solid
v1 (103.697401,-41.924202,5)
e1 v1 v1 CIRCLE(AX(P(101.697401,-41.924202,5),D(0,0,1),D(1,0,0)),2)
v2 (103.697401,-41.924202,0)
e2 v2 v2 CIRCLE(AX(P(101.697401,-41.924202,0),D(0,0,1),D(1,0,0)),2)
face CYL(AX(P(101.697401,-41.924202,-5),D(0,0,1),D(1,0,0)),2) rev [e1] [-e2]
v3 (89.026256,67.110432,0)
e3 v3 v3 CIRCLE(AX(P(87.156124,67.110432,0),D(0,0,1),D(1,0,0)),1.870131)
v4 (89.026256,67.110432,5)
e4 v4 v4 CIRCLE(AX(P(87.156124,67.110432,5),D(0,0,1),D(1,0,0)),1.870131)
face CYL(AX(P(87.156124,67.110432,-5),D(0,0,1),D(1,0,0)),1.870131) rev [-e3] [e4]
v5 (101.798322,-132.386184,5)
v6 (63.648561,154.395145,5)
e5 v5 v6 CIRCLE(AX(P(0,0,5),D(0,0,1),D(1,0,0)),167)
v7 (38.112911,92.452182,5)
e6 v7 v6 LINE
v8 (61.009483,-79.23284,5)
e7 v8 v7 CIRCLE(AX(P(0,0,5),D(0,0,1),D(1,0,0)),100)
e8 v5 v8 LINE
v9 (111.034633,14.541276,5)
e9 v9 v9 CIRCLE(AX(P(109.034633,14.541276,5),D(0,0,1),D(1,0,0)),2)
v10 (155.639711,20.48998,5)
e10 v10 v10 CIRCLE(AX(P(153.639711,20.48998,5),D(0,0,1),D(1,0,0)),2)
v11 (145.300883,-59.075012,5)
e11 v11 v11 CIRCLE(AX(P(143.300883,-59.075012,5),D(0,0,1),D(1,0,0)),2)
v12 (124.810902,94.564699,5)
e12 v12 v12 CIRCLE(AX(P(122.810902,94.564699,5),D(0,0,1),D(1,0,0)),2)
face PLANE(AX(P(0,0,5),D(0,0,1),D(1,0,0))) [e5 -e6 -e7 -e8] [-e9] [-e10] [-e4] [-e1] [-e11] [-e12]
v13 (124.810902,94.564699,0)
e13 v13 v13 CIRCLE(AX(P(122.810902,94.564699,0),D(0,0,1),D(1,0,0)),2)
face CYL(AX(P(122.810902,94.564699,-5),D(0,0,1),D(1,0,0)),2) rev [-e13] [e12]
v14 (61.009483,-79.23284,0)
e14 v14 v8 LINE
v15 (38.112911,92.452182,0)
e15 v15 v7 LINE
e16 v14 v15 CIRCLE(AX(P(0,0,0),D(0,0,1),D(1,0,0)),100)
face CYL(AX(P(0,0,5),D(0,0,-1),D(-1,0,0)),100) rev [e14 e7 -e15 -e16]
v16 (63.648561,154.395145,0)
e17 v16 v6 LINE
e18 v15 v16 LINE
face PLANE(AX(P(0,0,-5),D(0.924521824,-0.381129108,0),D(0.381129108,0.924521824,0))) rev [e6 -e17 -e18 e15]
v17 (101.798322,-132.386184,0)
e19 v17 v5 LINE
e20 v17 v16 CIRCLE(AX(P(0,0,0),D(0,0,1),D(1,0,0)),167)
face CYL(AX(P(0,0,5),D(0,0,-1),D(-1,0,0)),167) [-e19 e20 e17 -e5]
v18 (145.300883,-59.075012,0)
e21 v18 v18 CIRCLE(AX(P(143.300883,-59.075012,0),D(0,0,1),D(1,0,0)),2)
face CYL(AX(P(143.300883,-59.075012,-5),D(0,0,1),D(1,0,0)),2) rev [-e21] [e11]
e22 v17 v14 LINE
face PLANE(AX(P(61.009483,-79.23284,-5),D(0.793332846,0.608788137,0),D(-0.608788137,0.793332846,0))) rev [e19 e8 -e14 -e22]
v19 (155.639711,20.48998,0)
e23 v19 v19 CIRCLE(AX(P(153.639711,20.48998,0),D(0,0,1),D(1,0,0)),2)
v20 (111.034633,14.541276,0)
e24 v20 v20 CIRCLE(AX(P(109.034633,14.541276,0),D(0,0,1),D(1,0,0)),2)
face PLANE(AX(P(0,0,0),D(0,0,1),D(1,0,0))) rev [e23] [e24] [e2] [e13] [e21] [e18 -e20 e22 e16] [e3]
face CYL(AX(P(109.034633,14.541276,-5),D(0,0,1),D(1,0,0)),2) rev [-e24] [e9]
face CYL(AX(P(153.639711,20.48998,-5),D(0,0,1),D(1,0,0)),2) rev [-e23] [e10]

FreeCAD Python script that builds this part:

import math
import FreeCAD as App
import Part
import Sketcher
Q = App.Units.Quantity

doc = App.newDocument("Part")
body = doc.addObject("PartDesign::Body", "Body")
body.AllowCompound = True

# Sketch on XY plane
sketch1 = doc.addObject("Sketcher::SketchObject", "Sketch")
body.addObject(sketch1)
sketch1.AttachmentSupport = (doc.XY_Plane, [""])
sketch1.MapMode = "FlatFace"
sketch1.addGeometry(Part.LineSegment(App.Vector(-2, 167, 0), App.Vector(-2, 100, 0)), False)
sketch1.addGeometry(Part.ArcOfCircle(Part.Circle(App.Vector(0, 0, 0), App.Vector(0, 0, 1), 100), math.radians(-91), math.radians(91)), False)
sketch1.addGeometry(Part.LineSegment(App.Vector(-2, -100, 0), App.Vector(-2, -167, 0)), False)
sketch1.addGeometry(Part.ArcOfCircle(Part.Circle(App.Vector(0, 0, 0), App.Vector(0, 0, 1), 167), math.radians(-91), math.radians(91)), False)
sketch1.addConstraint(Sketcher.Constraint("Coincident", 0, 2, 1, 2))
sketch1.addConstraint(Sketcher.Constraint("Coincident", 1, 1, 2, 1))
sketch1.addConstraint(Sketcher.Constraint("Coincident", 2, 2, 3, 1))
sketch1.addConstraint(Sketcher.Constraint("Coincident", 3, 2, 0, 1))
sketch1.addConstraint(Sketcher.Constraint("Vertical", 0))
sketch1.addConstraint(Sketcher.Constraint("Vertical", 2))
sketch1.addConstraint(Sketcher.Constraint("Coincident", 1, 3, -1, 1))
sketch1.addConstraint(Sketcher.Constraint("Coincident", 3, 3, -1, 1))
sketch1.addConstraint(Sketcher.Constraint("Vertical", 0, 2, 1, 1))
sketch1.addConstraint(Sketcher.Constraint("Radius", 1, Q("100 mm")))
sketch1.addConstraint(Sketcher.Constraint("Radius", 3, Q("167 mm")))
sketch1.addConstraint(Sketcher.Constraint("DistanceX", 0, 2, -1, 1, Q("2 mm")))
pad1 = doc.addObject("PartDesign::Pad", "Pad")
body.addObject(pad1)
pad1.Profile = sketch1
pad1.Length = 5

# Sketch on XY plane
sketch2 = doc.addObject("Sketcher::SketchObject", "Sketch001")
body.addObject(sketch2)
sketch2.AttachmentSupport = (doc.XY_Plane, [""])
sketch2.MapMode = "FlatFace"
sketch2.AttachmentOffset = App.Placement(App.Vector(0, 0, 5), App.Rotation())
sketch2.addGeometry(Part.LineSegment(App.Vector(29, 43, 0), App.Vector(38, 92, 0)), False)
sketch2.addGeometry(Part.LineSegment(App.Vector(38, 92, 0), App.Vector(64, 154, 0)), False)
sketch2.addGeometry(Part.LineSegment(App.Vector(64, 154, 0), App.Vector(68, 172, 0)), False)
sketch2.addGeometry(Part.LineSegment(App.Vector(68, 172, 0), App.Vector(-25, 193, 0)), False)
sketch2.addGeometry(Part.LineSegment(App.Vector(-25, 193, 0), App.Vector(-15, 83, 0)), False)
sketch2.addGeometry(Part.LineSegment(App.Vector(-15, 83, 0), App.Vector(29, 43, 0)), False)
sketch2.addGeometry(Part.LineSegment(App.Vector(56, 20, 0), App.Vector(29, 43, 0)), False)
sketch2.addGeometry(Part.LineSegment(App.Vector(29, 43, 0), App.Vector(-11, -184, 0)), False)
sketch2.addGeometry(Part.LineSegment(App.Vector(-11, -184, 0), App.Vector(102, -156, 0)), False)
sketch2.addGeometry(Part.LineSegment(App.Vector(102, -156, 0), App.Vector(102, -133, 0)), False)
sketch2.addGeometry(Part.LineSegment(App.Vector(102, -133, 0), App.Vector(54, -84, 0)), False)
sketch2.addGeometry(Part.LineSegment(App.Vector(54, -84, 0), App.Vector(56, 20, 0)), False)
sketch2.addConstraint(Sketcher.Constraint("Coincident", 0, 2, 1, 1))
sketch2.addConstraint(Sketcher.Constraint("Coincident", 1, 2, 2, 1))
sketch2.addConstraint(Sketcher.Constraint("Coincident", 2, 2, 3, 1))
sketch2.addConstraint(Sketcher.Constraint("Coincident", 3, 2, 4, 1))
sketch2.addConstraint(Sketcher.Constraint("Coincident", 4, 2, 5, 1))
sketch2.addConstraint(Sketcher.Constraint("Coincident", 5, 2, 0, 1))
sketch2.addConstraint(Sketcher.Constraint("Coincident", 6, 2, 7, 1))
sketch2.addConstraint(Sketcher.Constraint("Coincident", 7, 2, 8, 1))
sketch2.addConstraint(Sketcher.Constraint("Coincident", 8, 2, 9, 1))
sketch2.addConstraint(Sketcher.Constraint("Coincident", 9, 2, 10, 1))
sketch2.addConstraint(Sketcher.Constraint("Coincident", 10, 2, 11, 1))
sketch2.addConstraint(Sketcher.Constraint("Coincident", 11, 2, 6, 1))
sketch2.addConstraint(Sketcher.Constraint("Vertical", 9))
sketch2.addConstraint(Sketcher.Constraint("Coincident", 6, 2, 5, 2))
sketch2.addConstraint(Sketcher.Constraint("Parallel", 5, 6))
sketch2.addConstraint(Sketcher.Constraint("Parallel", 0, 7))
sketch2.addConstraint(Sketcher.Constraint("Distance", 1, Q("67 mm")))
sketch2.addConstraint(Sketcher.Constraint("DistanceY", -1, 1, 3, 2, Q("192.914302 mm")))
sketch2.addConstraint(Sketcher.Constraint("DistanceX", 4, 2, 5, 2, Q("44.378699 mm")))
sketch2.addConstraint(Sketcher.Constraint("Distance", 0, Q("49.796431 mm")))
sketch2.addConstraint(Sketcher.Constraint("Distance", 4, Q("110.563029 mm")))
sketch2.addConstraint(Sketcher.Constraint("Distance", 5, Q("59.32899 mm")))
sketch2.addConstraint(Sketcher.Constraint("Distance", 6, Q("35.830421 mm")))
sketch2.addConstraint(Sketcher.Constraint("DistanceY", 9, 1, 9, 2, Q("23.017855 mm")))
sketch2.addConstraint(Sketcher.Constraint("DistanceX", -1, 1, 0, 2, Q("38.112911 mm")))
sketch2.addConstraint(Sketcher.Constraint("DistanceX", -1, 1, 1, 2, Q("63.648561 mm")))
sketch2.addConstraint(Sketcher.Constraint("DistanceY", -1, 1, 2, 2, Q("172.275239 mm")))
sketch2.addConstraint(Sketcher.Constraint("DistanceX", 4, 2, -1, 1, Q("14.988061 mm")))
sketch2.addConstraint(Sketcher.Constraint("DistanceY", 7, 2, -1, 1, Q("184.437631 mm")))
sketch2.addConstraint(Sketcher.Constraint("DistanceX", -1, 1, 8, 2, Q("102.415882 mm")))
sketch2.addConstraint(Sketcher.Constraint("DistanceY", 9, 2, -1, 1, Q("133.007211 mm")))
sketch2.addConstraint(Sketcher.Constraint("DistanceX", 3, 2, 2, 2, Q("92.984241 mm")))
sketch2.addConstraint(Sketcher.Constraint("DistanceY", 0, 2, 3, 2, Q("100.462119 mm")))
sketch2.addConstraint(Sketcher.Constraint("DistanceY", 8, 2, 10, 2, Q("71.798991 mm")))
sketch2.addConstraint(Sketcher.Constraint("DistanceX", 7, 2, 10, 2, Q("65.055321 mm")))
pocket1 = doc.addObject("PartDesign::Pocket", "Pocket")
body.addObject(pocket1)
pocket1.Profile = sketch2
pocket1.Length = 10

# Sketch on XY plane
sketch3 = doc.addObject("Sketcher::SketchObject", "Sketch002")
body.addObject(sketch3)
sketch3.AttachmentSupport = (doc.XY_Plane, [""])
sketch3.MapMode = "FlatFace"
sketch3.AttachmentOffset = App.Placement(App.Vector(0, 0, 5), App.Rotation())
sketch3.addGeometry(Part.LineSegment(App.Vector(-45, -95, 0), App.Vector(-45, -147, 0)), False)
sketch3.addGeometry(Part.LineSegment(App.Vector(-45, -147, 0), App.Vector(25, -147, 0)), False)
sketch3.addGeometry(Part.LineSegment(App.Vector(25, -147, 0), App.Vector(25, -95, 0)), False)
sketch3.addGeometry(Part.LineSegment(App.Vector(25, -95, 0), App.Vector(-45, -95, 0)), False)
sketch3.addConstraint(Sketcher.Constraint("Coincident", 0, 2, 1, 1))
sketch3.addConstraint(Sketcher.Constraint("Coincident", 1, 2, 2, 1))
sketch3.addConstraint(Sketcher.Constraint("Coincident", 2, 2, 3, 1))
sketch3.addConstraint(Sketcher.Constraint("Coincident", 3, 2, 0, 1))
sketch3.addConstraint(Sketcher.Constraint("Vertical", 0))
sketch3.addConstraint(Sketcher.Constraint("Horizontal", 1))
sketch3.addConstraint(Sketcher.Constraint("Vertical", 2))
sketch3.addConstraint(Sketcher.Constraint("Horizontal", 3))
sketch3.addConstraint(Sketcher.Constraint("DistanceY", 0, 2, 0, 1, Q("52.172348 mm")))
sketch3.addConstraint(Sketcher.Constraint("DistanceX", 1, 1, 1, 2, Q("70.825034 mm")))
sketch3.addConstraint(Sketcher.Constraint("DistanceX", 0, 2, -1, 1, Q("45.42085 mm")))
sketch3.addConstraint(Sketcher.Constraint("DistanceY", 2, 2, -1, 1, Q("95.184759 mm")))
pocket2 = doc.addObject("PartDesign::Pocket", "Pocket001")
body.addObject(pocket2)
pocket2.Profile = sketch3
pocket2.Length = 10

# Sketch on XY plane
sketch4 = doc.addObject("Sketcher::SketchObject", "Sketch003")
body.addObject(sketch4)
sketch4.AttachmentSupport = (doc.XY_Plane, [""])
sketch4.MapMode = "FlatFace"
sketch4.AttachmentOffset = App.Placement(App.Vector(0, 0, 5), App.Rotation())
sketch4.addGeometry(Part.Circle(App.Vector(109, 14.5, 0), App.Vector(0, 0, 1), 2), False)
sketch4.addGeometry(Part.Circle(App.Vector(101.7, -41.9, 0), App.Vector(0, 0, 1), 2), False)
sketch4.addGeometry(Part.Circle(App.Vector(87.2, 67.1, 0), App.Vector(0, 0, 1), 1.9), False)
sketch4.addGeometry(Part.Circle(App.Vector(122.8, 94.6, 0), App.Vector(0, 0, 1), 2), False)
sketch4.addGeometry(Part.Circle(App.Vector(143.3, -59.1, 0), App.Vector(0, 0, 1), 2), False)
sketch4.addGeometry(Part.Circle(App.Vector(153.6, 20.5, 0), App.Vector(0, 0, 1), 2), False)
sketch4.addConstraint(Sketcher.Constraint("Equal", 0, 1))
sketch4.addConstraint(Sketcher.Constraint("Equal", 1, 3))
sketch4.addConstraint(Sketcher.Constraint("Equal", 3, 4))
sketch4.addConstraint(Sketcher.Constraint("Equal", 4, 5))
sketch4.addConstraint(Sketcher.Constraint("Diameter", 0, Q("4 mm")))
sketch4.addConstraint(Sketcher.Constraint("Diameter", 2, Q("3.740263 mm")))
sketch4.addConstraint(Sketcher.Constraint("DistanceX", -1, 1, 1, 3, Q("101.697401 mm")))
sketch4.addConstraint(Sketcher.Constraint("DistanceY", 1, 3, -1, 1, Q("41.924202 mm")))
sketch4.addConstraint(Sketcher.Constraint("DistanceY", -1, 1, 3, 3, Q("94.564699 mm")))
sketch4.addConstraint(Sketcher.Constraint("DistanceX", 1, 3, 3, 3, Q("21.113502 mm")))
sketch4.addConstraint(Sketcher.Constraint("DistanceY", -1, 1, 2, 3, Q("67.110432 mm")))
sketch4.addConstraint(Sketcher.Constraint("DistanceY", 4, 3, -1, 1, Q("59.075012 mm")))
sketch4.addConstraint(Sketcher.Constraint("DistanceX", -1, 1, 5, 3, Q("153.639711 mm")))
sketch4.addConstraint(Sketcher.Constraint("DistanceY", -1, 1, 5, 3, Q("20.48998 mm")))
sketch4.addConstraint(Sketcher.Constraint("DistanceY", 1, 3, 0, 3, Q("56.465478 mm")))
sketch4.addConstraint(Sketcher.Constraint("DistanceX", 2, 3, 0, 3, Q("21.878509 mm")))
sketch4.addConstraint(Sketcher.Constraint("DistanceX", 2, 3, 3, 3, Q("35.654778 mm")))
sketch4.addConstraint(Sketcher.Constraint("DistanceX", 0, 3, 4, 3, Q("34.266249 mm")))
pocket3 = doc.addObject("PartDesign::Pocket", "Pocket002")
body.addObject(pocket3)
pocket3.Profile = sketch4
pocket3.Length = 10

# Sketch on XY plane
sketch5 = doc.addObject("Sketcher::SketchObject", "Sketch004")
body.addObject(sketch5)
sketch5.AttachmentSupport = (doc.XY_Plane, [""])
sketch5.MapMode = "FlatFace"
sketch5.AttachmentOffset = App.Placement(App.Vector(0, 0, 5), App.Rotation())
sketch5.addGeometry(Part.LineSegment(App.Vector(102, -132, 0), App.Vector(61, -79, 0)), False)
sketch5.addGeometry(Part.LineSegment(App.Vector(61, -79, 0), App.Vector(52, -73, 0)), False)
sketch5.addGeometry(Part.LineSegment(App.Vector(52, -73, 0), App.Vector(43, -74, 0)), False)
sketch5.addGeometry(Part.LineSegment(App.Vector(43, -74, 0), App.Vector(47, -99, 0)), False)
sketch5.addGeometry(Part.LineSegment(App.Vector(47, -99, 0), App.Vector(102, -132, 0)), False)
sketch5.addConstraint(Sketcher.Constraint("Coincident", 0, 2, 1, 1))
sketch5.addConstraint(Sketcher.Constraint("Coincident", 1, 2, 2, 1))
sketch5.addConstraint(Sketcher.Constraint("Coincident", 2, 2, 3, 1))
sketch5.addConstraint(Sketcher.Constraint("Coincident", 3, 2, 4, 1))
sketch5.addConstraint(Sketcher.Constraint("Coincident", 4, 2, 0, 1))
sketch5.addConstraint(Sketcher.Constraint("Perpendicular", 2, 3))
sketch5.addConstraint(Sketcher.Constraint("DistanceY", 4, 2, 2, 2, Q("58.189399 mm")))
sketch5.addConstraint(Sketcher.Constraint("DistanceY", 0, 2, -1, 1, Q("79.23284 mm")))
sketch5.addConstraint(Sketcher.Constraint("DistanceY", 1, 2, -1, 1, Q("72.99991 mm")))
sketch5.addConstraint(Sketcher.Constraint("DistanceX", -1, 1, 3, 2, Q("46.64347 mm")))
sketch5.addConstraint(Sketcher.Constraint("DistanceX", -1, 1, 4, 2, Q("101.798322 mm")))
sketch5.addConstraint(Sketcher.Constraint("DistanceX", 2, 2, 1, 2, Q("8.624532 mm")))
sketch5.addConstraint(Sketcher.Constraint("DistanceX", 2, 2, 0, 2, Q("17.793829 mm")))
sketch5.addConstraint(Sketcher.Constraint("DistanceY", 3, 2, 2, 2, Q("24.700421 mm")))
sketch5.addConstraint(Sketcher.Constraint("DistanceX", 0, 2, 4, 2, Q("40.788838 mm")))
pocket4 = doc.addObject("PartDesign::Pocket", "Pocket003")
body.addObject(pocket4)
pocket4.Profile = sketch5
pocket4.Length = 10

doc.recompute()
